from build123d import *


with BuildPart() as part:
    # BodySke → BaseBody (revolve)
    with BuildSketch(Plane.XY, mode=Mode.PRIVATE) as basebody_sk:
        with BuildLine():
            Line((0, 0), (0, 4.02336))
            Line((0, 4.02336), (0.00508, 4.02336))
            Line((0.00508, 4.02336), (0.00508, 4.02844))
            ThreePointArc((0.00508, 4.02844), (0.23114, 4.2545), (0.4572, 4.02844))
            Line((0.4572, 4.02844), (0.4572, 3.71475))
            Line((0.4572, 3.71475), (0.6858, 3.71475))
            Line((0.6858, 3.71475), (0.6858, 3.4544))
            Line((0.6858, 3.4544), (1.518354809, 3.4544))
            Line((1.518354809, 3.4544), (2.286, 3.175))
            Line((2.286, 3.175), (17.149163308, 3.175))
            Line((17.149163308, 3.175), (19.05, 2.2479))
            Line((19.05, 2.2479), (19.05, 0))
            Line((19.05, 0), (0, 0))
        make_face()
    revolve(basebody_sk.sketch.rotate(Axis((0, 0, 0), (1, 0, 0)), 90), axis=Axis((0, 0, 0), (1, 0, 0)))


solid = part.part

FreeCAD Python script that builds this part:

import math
import FreeCAD as App
import Part
import Sketcher
from FreeCAD import Vector
Q = App.Units.Quantity

doc = App.newDocument("Part")
params = doc.addObject("Spreadsheet::Sheet", "Params")
for row, (alias, value) in enumerate([
    ("sketch1_width", "0.75 in"),
    ("sketch1_width2", "0.009 in"),
    ("revolution_angle", "360 deg"),
], start=1):
    params.set(f"A{row}", alias)
    params.set(f"B{row}", "=" + value)
    params.setAlias(f"B{row}", alias)

body = doc.addObject("PartDesign::Body", "Body")

# Sketch on XY plane
sketch1 = body.newObject("Sketcher::SketchObject", "Sketch")
sketch1.AttachmentSupport = (doc.getObject("XY_Plane"), [""])
sketch1.MapMode = "FlatFace"
sketch1.addGeometry([
    Part.LineSegment(Vector(0, 4.023, 0), Vector(0, 0, 0)),  # 0
    Part.LineSegment(Vector(0, 0, 0), Vector(19.05, 0, 0)),  # 1
    Part.LineSegment(Vector(19.05, 0, 0), Vector(19.05, 2.248, 0)),  # 2
    Part.LineSegment(Vector(19.05, 2.248, 0), Vector(17.149, 3.175, 0)),  # 3
    Part.LineSegment(Vector(17.149, 3.175, 0), Vector(2.286, 3.175, 0)),  # 4
    Part.LineSegment(Vector(2.286, 3.175, 0), Vector(1.518, 3.454, 0)),  # 5
    Part.LineSegment(Vector(1.518, 3.454, 0), Vector(0.686, 3.454, 0)),  # 6
    Part.LineSegment(Vector(0.686, 3.454, 0), Vector(0.686, 3.715, 0)),  # 7
    Part.LineSegment(Vector(0.686, 3.715, 0), Vector(0.457, 3.715, 0)),  # 8
    Part.LineSegment(Vector(0.457, 3.715, 0), Vector(0.457, 4.028, 0)),  # 9
    Part.ArcOfCircle(Part.Circle(Vector(0.231, 4.028, 0), Vector(0, 0, 1), 0.226), math.radians(0), math.radians(180)),  # 10
    Part.LineSegment(Vector(0.005, 4.028, 0), Vector(0.005, 4.023, 0)),  # 11
    Part.LineSegment(Vector(0.005, 4.023, 0), Vector(0, 4.023, 0)),  # 12
], False)
sketch1.addConstraint([
    Sketcher.Constraint("Coincident", 0, 2, 1, 1),
    Sketcher.Constraint("Coincident", 1, 2, 2, 1),
    Sketcher.Constraint("Coincident", 2, 2, 3, 1),
    Sketcher.Constraint("Coincident", 3, 2, 4, 1),
    Sketcher.Constraint("Coincident", 4, 2, 5, 1),
    Sketcher.Constraint("Coincident", 5, 2, 6, 1),
    Sketcher.Constraint("Coincident", 6, 2, 7, 1),
    Sketcher.Constraint("Coincident", 7, 2, 8, 1),
    Sketcher.Constraint("Coincident", 8, 2, 9, 1),
    Sketcher.Constraint("Tangent", 9, 2, 10, 1),
    Sketcher.Constraint("Tangent", 10, 2, 11, 1),
    Sketcher.Constraint("Coincident", 11, 2, 12, 1),
    Sketcher.Constraint("Coincident", 12, 2, 0, 1),
    Sketcher.Constraint("Vertical", 0),
    Sketcher.Constraint("Horizontal", 1),
    Sketcher.Constraint("Vertical", 2),
    Sketcher.Constraint("Horizontal", 4),
    Sketcher.Constraint("Horizontal", 6),
    Sketcher.Constraint("Vertical", 7),
    Sketcher.Constraint("Horizontal", 8),
    Sketcher.Constraint("Vertical", 9),
    Sketcher.Constraint("Vertical", 11),
    Sketcher.Constraint("Horizontal", 12),
    Sketcher.Constraint("Coincident", 0, 2, -1, 1),
    Sketcher.Constraint("Equal", 12, 11),
    Sketcher.Constraint("Angle", 3, Q("154 deg")),
    Sketcher.Constraint("Angle", 5, Q("160 deg")),
    Sketcher.Constraint("DistanceX", 1, 1, 1, 2, Q("0.75 in")),
    Sketcher.Constraint("Radius", 10, Q("0.0089 in")),
    Sketcher.Constraint("DistanceX", 8, 2, 8, 1, Q("0.009 in")),
    Sketcher.Constraint("DistanceX", -1, 1, 4, 2, Q("0.09 in")),
    Sketcher.Constraint("DistanceX", 12, 2, 12, 1, Q("0.0002 in")),
    Sketcher.Constraint("DistanceY", 0, 2, 0, 1, Q("0.1584 in")),
    Sketcher.Constraint("DistanceY", 2, 1, 2, 2, Q("0.0885 in")),
    Sketcher.Constraint("DistanceY", -1, 1, 3, 2, Q("0.125 in")),
    Sketcher.Constraint("DistanceY", -1, 1, 5, 2, Q("0.136 in")),
    Sketcher.Constraint("DistanceY", 7, 1, 7, 2, Q("0.26035 mm")),
])
sketch1.setExpression("Constraints[27]", "Params.sketch1_width")
sketch1.setExpression("Constraints[29]", "Params.sketch1_width2")
revolution = body.newObject("PartDesign::Revolution", "Revolution")
revolution.Profile = sketch1
revolution.ReferenceAxis = (sketch1, ["H_Axis"])
revolution.setExpression("Angle", "Params.revolution_angle")

doc.recompute()
